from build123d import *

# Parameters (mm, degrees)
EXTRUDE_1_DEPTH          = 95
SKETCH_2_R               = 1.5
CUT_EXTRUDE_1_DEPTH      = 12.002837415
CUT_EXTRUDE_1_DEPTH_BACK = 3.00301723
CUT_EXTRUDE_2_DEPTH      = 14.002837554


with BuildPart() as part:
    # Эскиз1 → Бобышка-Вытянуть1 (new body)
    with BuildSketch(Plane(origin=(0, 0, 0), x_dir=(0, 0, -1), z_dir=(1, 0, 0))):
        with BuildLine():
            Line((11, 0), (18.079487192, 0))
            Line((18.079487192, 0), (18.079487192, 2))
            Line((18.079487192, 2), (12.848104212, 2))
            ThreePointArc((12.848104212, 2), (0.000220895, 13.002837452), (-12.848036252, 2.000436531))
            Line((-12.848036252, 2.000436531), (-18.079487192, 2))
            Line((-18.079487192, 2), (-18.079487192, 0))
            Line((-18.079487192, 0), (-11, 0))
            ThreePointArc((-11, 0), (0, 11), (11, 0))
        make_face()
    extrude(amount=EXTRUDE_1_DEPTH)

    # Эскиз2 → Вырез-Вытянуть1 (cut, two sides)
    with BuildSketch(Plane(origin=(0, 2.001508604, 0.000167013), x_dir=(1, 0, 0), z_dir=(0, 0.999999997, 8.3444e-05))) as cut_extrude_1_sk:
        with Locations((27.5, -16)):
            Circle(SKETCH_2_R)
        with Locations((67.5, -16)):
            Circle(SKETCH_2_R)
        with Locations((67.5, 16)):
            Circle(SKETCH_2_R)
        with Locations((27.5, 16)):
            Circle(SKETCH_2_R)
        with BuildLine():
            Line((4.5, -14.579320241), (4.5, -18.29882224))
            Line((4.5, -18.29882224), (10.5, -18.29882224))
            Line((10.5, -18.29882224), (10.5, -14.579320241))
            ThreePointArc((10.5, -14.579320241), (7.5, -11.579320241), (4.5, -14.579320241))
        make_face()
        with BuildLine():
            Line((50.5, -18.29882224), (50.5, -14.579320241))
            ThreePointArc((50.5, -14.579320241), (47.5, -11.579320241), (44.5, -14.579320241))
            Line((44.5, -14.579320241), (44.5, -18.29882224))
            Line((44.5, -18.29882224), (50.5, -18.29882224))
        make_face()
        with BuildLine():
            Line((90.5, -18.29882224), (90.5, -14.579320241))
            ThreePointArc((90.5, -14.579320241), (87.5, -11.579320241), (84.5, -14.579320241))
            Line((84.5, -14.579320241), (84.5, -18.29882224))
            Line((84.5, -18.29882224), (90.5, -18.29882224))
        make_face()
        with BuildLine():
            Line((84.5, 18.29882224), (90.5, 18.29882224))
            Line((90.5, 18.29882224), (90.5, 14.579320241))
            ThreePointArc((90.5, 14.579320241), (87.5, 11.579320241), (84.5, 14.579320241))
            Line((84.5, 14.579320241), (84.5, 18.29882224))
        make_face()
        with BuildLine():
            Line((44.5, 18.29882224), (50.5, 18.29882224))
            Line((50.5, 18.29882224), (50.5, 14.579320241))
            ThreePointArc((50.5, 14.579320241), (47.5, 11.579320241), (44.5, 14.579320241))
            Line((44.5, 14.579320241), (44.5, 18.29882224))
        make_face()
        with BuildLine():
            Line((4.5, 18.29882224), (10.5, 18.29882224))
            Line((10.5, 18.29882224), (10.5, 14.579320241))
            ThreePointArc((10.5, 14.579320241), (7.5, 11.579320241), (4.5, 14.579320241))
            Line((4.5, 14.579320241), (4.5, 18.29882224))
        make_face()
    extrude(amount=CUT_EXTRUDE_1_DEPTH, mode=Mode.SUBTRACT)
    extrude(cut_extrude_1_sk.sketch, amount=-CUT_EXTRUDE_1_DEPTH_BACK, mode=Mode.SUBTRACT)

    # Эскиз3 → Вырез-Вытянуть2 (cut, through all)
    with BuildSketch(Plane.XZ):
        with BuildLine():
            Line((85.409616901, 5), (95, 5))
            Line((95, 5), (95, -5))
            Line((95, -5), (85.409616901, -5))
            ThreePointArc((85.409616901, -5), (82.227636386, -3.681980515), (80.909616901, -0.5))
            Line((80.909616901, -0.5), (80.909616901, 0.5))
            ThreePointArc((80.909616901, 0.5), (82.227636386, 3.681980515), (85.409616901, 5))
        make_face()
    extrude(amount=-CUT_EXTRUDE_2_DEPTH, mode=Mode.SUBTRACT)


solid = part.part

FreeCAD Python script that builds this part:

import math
import FreeCAD as App
import Part
import Sketcher

V = App.Vector

doc = App.newDocument("Part")
body = doc.addObject("PartDesign::Body", "Body")

# Sketch on YZ plane
sketch1 = body.newObject("Sketcher::SketchObject", "Sketch")
sketch1.AttachmentSupport = (doc.getObject("YZ_Plane"), [""])
sketch1.MapMode = "FlatFace"
sketch1.addGeometry([
    Part.LineSegment(V(0, -11, 0), V(0, -18.1, 0)),  # 0
    Part.LineSegment(V(0, -18.1, 0), V(2, -18.1, 0)),  # 1
    Part.LineSegment(V(2, -18.1, 0), V(2, -12.8, 0)),  # 2
    Part.ArcOfCircle(Part.Circle(V(0, 0, 0), V(0, 0, 1), 13), math.radians(-81), math.radians(81)),  # 3
    Part.LineSegment(V(2, 12.8, 0), V(2, 18.1, 0)),  # 4
    Part.LineSegment(V(2, 18.1, 0), V(0, 18.1, 0)),  # 5
    Part.LineSegment(V(0, 18.1, 0), V(0, 11, 0)),  # 6
    Part.ArcOfCircle(Part.Circle(V(0, 0, 0), V(0, 0, 1), 11), math.radians(-90), math.radians(90)),  # 7
], False)
sketch1.addConstraint([
    Sketcher.Constraint("Coincident", 0, 2, 1, 1),
    Sketcher.Constraint("Coincident", 1, 2, 2, 1),
    Sketcher.Constraint("Coincident", 2, 2, 3, 1),
    Sketcher.Constraint("Coincident", 3, 2, 4, 1),
    Sketcher.Constraint("Coincident", 4, 2, 5, 1),
    Sketcher.Constraint("Coincident", 5, 2, 6, 1),
    Sketcher.Constraint("Coincident", 6, 2, 7, 2),
    Sketcher.Constraint("Coincident", 7, 1, 0, 1),
    Sketcher.Constraint("Vertical", 0),
    Sketcher.Constraint("Horizontal", 1),
    Sketcher.Constraint("Vertical", 2),
    Sketcher.Constraint("Horizontal", 5),
    Sketcher.Constraint("Vertical", 6),
    Sketcher.Constraint("Coincident", 3, 3, -1, 1),
    Sketcher.Constraint("Coincident", 7, 3, -1, 1),
    Sketcher.Constraint("Symmetric", 0, 2, 5, 2, -1, 1),
    Sketcher.Constraint("PointOnObject", 0, 2, -2),
    Sketcher.Constraint("Vertical", 2, 2, 4, 2),
    Sketcher.Constraint("Radius", 7, 11.0),
    Sketcher.Constraint("DistanceX", 1, 1, 1, 2, 2.0),
    Sketcher.Constraint("Radius", 3, 13.002837),
    Sketcher.Constraint("Distance", 4, 5.231451),
    Sketcher.Constraint("DistanceY", 0, 2, 0, 1, 7.079487),
])
pad1 = body.newObject("PartDesign::Pad", "Pad")
pad1.Profile = sketch1
pad1.Length = 95

# Sketch on an angled plane
sketch2 = body.newObject("Sketcher::SketchObject", "Sketch001")
sketch2.Placement = App.Placement(V(0, 2.001509, 0.000167), App.Rotation(V(1, 0, 0), V(0, 0.000083444, -0.999999997), V(0, 0.999999997, 0.000083444), "ZXY"))
sketch2.addGeometry([
    Part.Circle(V(27.5, -16, 0), V(0, 0, 1), 1.5),  # 0
    Part.Circle(V(67.5, -16, 0), V(0, 0, 1), 1.5),  # 1
    Part.Circle(V(67.5, 16, 0), V(0, 0, 1), 1.5),  # 2
    Part.Circle(V(27.5, 16, 0), V(0, 0, 1), 1.5),  # 3
    Part.LineSegment(V(4.5, -14.6, 0), V(4.5, -18.3, 0)),  # 4
    Part.LineSegment(V(4.5, -18.3, 0), V(10.5, -18.3, 0)),  # 5
    Part.LineSegment(V(10.5, -18.3, 0), V(10.5, -14.6, 0)),  # 6
    Part.ArcOfCircle(Part.Circle(V(7.5, -14.6, 0), V(0, 0, 1), 3), math.radians(0), math.radians(180)),  # 7
    Part.LineSegment(V(50.5, -18.3, 0), V(50.5, -14.6, 0)),  # 8
    Part.ArcOfCircle(Part.Circle(V(47.5, -14.6, 0), V(0, 0, 1), 3), math.radians(0), math.radians(180)),  # 9
    Part.LineSegment(V(44.5, -14.6, 0), V(44.5, -18.3, 0)),  # 10
    Part.LineSegment(V(44.5, -18.3, 0), V(50.5, -18.3, 0)),  # 11
    Part.LineSegment(V(90.5, -18.3, 0), V(90.5, -14.6, 0)),  # 12
    Part.ArcOfCircle(Part.Circle(V(87.5, -14.6, 0), V(0, 0, 1), 3), math.radians(0), math.radians(180)),  # 13
    Part.LineSegment(V(84.5, -14.6, 0), V(84.5, -18.3, 0)),  # 14
    Part.LineSegment(V(84.5, -18.3, 0), V(90.5, -18.3, 0)),  # 15
    Part.LineSegment(V(90.5, 18.3, 0), V(84.5, 18.3, 0)),  # 16
    Part.LineSegment(V(84.5, 18.3, 0), V(84.5, 14.6, 0)),  # 17
    Part.ArcOfCircle(Part.Circle(V(87.5, 14.6, 0), V(0, 0, 1), 3), math.radians(180), math.radians(360)),  # 18
    Part.LineSegment(V(90.5, 14.6, 0), V(90.5, 18.3, 0)),  # 19
    Part.LineSegment(V(50.5, 18.3, 0), V(44.5, 18.3, 0)),  # 20
    Part.LineSegment(V(44.5, 18.3, 0), V(44.5, 14.6, 0)),  # 21
    Part.ArcOfCircle(Part.Circle(V(47.5, 14.6, 0), V(0, 0, 1), 3), math.radians(180), math.radians(360)),  # 22
    Part.LineSegment(V(50.5, 14.6, 0), V(50.5, 18.3, 0)),  # 23
    Part.LineSegment(V(10.5, 18.3, 0), V(4.5, 18.3, 0)),  # 24
    Part.LineSegment(V(4.5, 18.3, 0), V(4.5, 14.6, 0)),  # 25
    Part.ArcOfCircle(Part.Circle(V(7.5, 14.6, 0), V(0, 0, 1), 3), math.radians(180), math.radians(360)),  # 26
    Part.LineSegment(V(10.5, 14.6, 0), V(10.5, 18.3, 0)),  # 27
], False)
sketch2.addConstraint([
    Sketcher.Constraint("Coincident", 4, 2, 5, 1),
    Sketcher.Constraint("Coincident", 5, 2, 6, 1),
    Sketcher.Constraint("Tangent", 6, 2, 7, 1),
    Sketcher.Constraint("Tangent", 7, 2, 4, 1),
    Sketcher.Constraint("Tangent", 8, 2, 9, 1),
    Sketcher.Constraint("Tangent", 9, 2, 10, 1),
    Sketcher.Constraint("Coincident", 10, 2, 11, 1),
    Sketcher.Constraint("Coincident", 11, 2, 8, 1),
    Sketcher.Constraint("Tangent", 12, 2, 13, 1),
    Sketcher.Constraint("Tangent", 13, 2, 14, 1),
    Sketcher.Constraint("Coincident", 14, 2, 15, 1),
    Sketcher.Constraint("Coincident", 15, 2, 12, 1),
    Sketcher.Constraint("Coincident", 16, 2, 17, 1),
    Sketcher.Constraint("Tangent", 17, 2, 18, 1),
    Sketcher.Constraint("Tangent", 18, 2, 19, 1),
    Sketcher.Constraint("Coincident", 19, 2, 16, 1),
    Sketcher.Constraint("Coincident", 20, 2, 21, 1),
    Sketcher.Constraint("Tangent", 21, 2, 22, 1),
    Sketcher.Constraint("Tangent", 22, 2, 23, 1),
    Sketcher.Constraint("Coincident", 23, 2, 20, 1),
    Sketcher.Constraint("Coincident", 24, 2, 25, 1),
    Sketcher.Constraint("Tangent", 25, 2, 26, 1),
    Sketcher.Constraint("Tangent", 26, 2, 27, 1),
    Sketcher.Constraint("Coincident", 27, 2, 24, 1),
    Sketcher.Constraint("Vertical", 4),
    Sketcher.Constraint("Horizontal", 5),
    Sketcher.Constraint("Vertical", 6),
    Sketcher.Constraint("Vertical", 8),
    Sketcher.Constraint("Vertical", 10),
    Sketcher.Constraint("Horizontal", 11),
    Sketcher.Constraint("Vertical", 12),
    Sketcher.Constraint("Vertical", 14),
    Sketcher.Constraint("Horizontal", 15),
    Sketcher.Constraint("Horizontal", 16),
    Sketcher.Constraint("Vertical", 17),
    Sketcher.Constraint("Vertical", 19),
    Sketcher.Constraint("Horizontal", 20),
    Sketcher.Constraint("Vertical", 21),
    Sketcher.Constraint("Vertical", 23),
    Sketcher.Constraint("Horizontal", 24),
    Sketcher.Constraint("Vertical", 25),
    Sketcher.Constraint("Vertical", 27),
    Sketcher.Constraint("Equal", 0, 1),
    Sketcher.Constraint("Equal", 1, 2),
    Sketcher.Constraint("Equal", 2, 3),
    Sketcher.Constraint("Equal", 7, 9),
    Sketcher.Constraint("Equal", 9, 13),
    Sketcher.Constraint("Equal", 13, 18),
    Sketcher.Constraint("Equal", 18, 22),
    Sketcher.Constraint("Equal", 22, 26),
    Sketcher.Constraint("Symmetric", 1, 3, 2, 3, -1),
    Sketcher.Constraint("Symmetric", 0, 3, 3, 3, -1),
    Sketcher.Constraint("Symmetric", 13, 3, 18, 3, -1),
    Sketcher.Constraint("Symmetric", 9, 3, 22, 3, -1),
    Sketcher.Constraint("Symmetric", 7, 3, 26, 3, -1),
    Sketcher.Constraint("Horizontal", 0, 3, 1, 3),
    Sketcher.Constraint("Horizontal", 7, 3, 9, 3),
    Sketcher.Constraint("Horizontal", 9, 3, 13, 3),
    Sketcher.Constraint("Horizontal", 5, 2, 10, 2),
    Sketcher.Constraint("Horizontal", 11, 2, 14, 2),
    Sketcher.Constraint("Horizontal", 19, 2, 20, 2),
    Sketcher.Constraint("Horizontal", 23, 2, 24, 2),
    Sketcher.Constraint("Equal", 14, 17),
    Sketcher.Constraint("Diameter", 0, 3.0),
    Sketcher.Constraint("Radius", 7, 3.0),
    Sketcher.Constraint("DistanceY", 0, 3, -1, 1, 16.0),
    Sketcher.Constraint("DistanceX", 0, 3, 1, 3, 40.0),
    Sketcher.Constraint("DistanceX", 7, 3, 0, 3, 20.0),
    Sketcher.Constraint("DistanceX", 0, 3, 9, 3, 20.0),
    Sketcher.Constraint("DistanceX", 1, 3, 13, 3, 20.0),
    Sketcher.Constraint("DistanceX", -1, 1, 0, 3, 27.5),
    Sketcher.Constraint("DistanceY", 4, 2, 4, 1, 3.719502),
    Sketcher.Constraint("DistanceY", 7, 3, -1, 1, 14.57932),
])
pocket1 = body.newObject("PartDesign::Pocket", "Pocket")
pocket1.Profile = sketch2
pocket1.Type = "ThroughAll"
pocket1.Midplane = True

# Sketch on XZ plane
sketch3 = body.newObject("Sketcher::SketchObject", "Sketch002")
sketch3.AttachmentSupport = (doc.getObject("XZ_Plane"), [""])
sketch3.MapMode = "FlatFace"
sketch3.addGeometry([
    Part.LineSegment(V(95, 5, 0), V(85.4, 5, 0)),  # 0
    Part.ArcOfCircle(Part.Circle(V(85.4, 0.5, 0), V(0, 0, 1), 4.5), math.radians(90), math.radians(180)),  # 1
    Part.LineSegment(V(80.9, 0.5, 0), V(80.9, -0.5, 0)),  # 2
    Part.ArcOfCircle(Part.Circle(V(85.4, -0.5, 0), V(0, 0, 1), 4.5), math.radians(-180), math.radians(-90)),  # 3
    Part.LineSegment(V(85.4, -5, 0), V(95, -5, 0)),  # 4
    Part.LineSegment(V(95, -5, 0), V(95, 5, 0)),  # 5
], False)
sketch3.addConstraint([
    Sketcher.Constraint("Tangent", 0, 2, 1, 1),
    Sketcher.Constraint("Tangent", 1, 2, 2, 1),
    Sketcher.Constraint("Tangent", 2, 2, 3, 1),
    Sketcher.Constraint("Tangent", 3, 2, 4, 1),
    Sketcher.Constraint("Coincident", 4, 2, 5, 1),
    Sketcher.Constraint("Coincident", 5, 2, 0, 1),
    Sketcher.Constraint("Horizontal", 0),
    Sketcher.Constraint("Vertical", 2),
    Sketcher.Constraint("Horizontal", 4),
    Sketcher.Constraint("Vertical", 5),
    Sketcher.Constraint("Equal", 1, 3),
    Sketcher.Constraint("Radius", 1, 4.5),
    Sketcher.Constraint("DistanceY", 2, 2, 2, 1, 1.0),
    Sketcher.Constraint("DistanceY", -1, 1, 0, 2, 5.0),
    Sketcher.Constraint("DistanceX", -1, 1, 4, 2, 95.0),
    Sketcher.Constraint("DistanceX", 0, 2, 0, 1, 9.590383),
])
pocket2 = body.newObject("PartDesign::Pocket", "Pocket001")
pocket2.Profile = sketch3
pocket2.Type = "ThroughAll"

doc.recompute()
